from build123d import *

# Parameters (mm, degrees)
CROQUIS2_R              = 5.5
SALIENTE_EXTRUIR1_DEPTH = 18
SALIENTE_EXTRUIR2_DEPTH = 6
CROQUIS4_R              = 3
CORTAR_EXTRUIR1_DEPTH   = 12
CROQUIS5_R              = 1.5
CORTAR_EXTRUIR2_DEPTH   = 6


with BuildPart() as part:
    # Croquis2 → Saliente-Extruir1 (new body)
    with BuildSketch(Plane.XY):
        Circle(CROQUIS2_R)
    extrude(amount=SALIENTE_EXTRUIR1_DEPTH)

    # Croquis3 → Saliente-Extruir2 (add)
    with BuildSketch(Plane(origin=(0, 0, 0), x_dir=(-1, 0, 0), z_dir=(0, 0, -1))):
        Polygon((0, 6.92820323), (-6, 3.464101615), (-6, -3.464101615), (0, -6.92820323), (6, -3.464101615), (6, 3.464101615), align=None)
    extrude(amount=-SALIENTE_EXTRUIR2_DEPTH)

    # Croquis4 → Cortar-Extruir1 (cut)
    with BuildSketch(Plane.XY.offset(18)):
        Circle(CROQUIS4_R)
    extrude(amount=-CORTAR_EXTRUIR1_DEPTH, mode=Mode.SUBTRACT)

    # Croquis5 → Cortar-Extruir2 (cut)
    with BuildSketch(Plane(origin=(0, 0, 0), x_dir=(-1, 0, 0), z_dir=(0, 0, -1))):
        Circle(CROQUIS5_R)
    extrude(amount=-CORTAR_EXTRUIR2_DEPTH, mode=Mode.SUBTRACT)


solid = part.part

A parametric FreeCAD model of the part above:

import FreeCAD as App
import Part
import Sketcher
Q = App.Units.Quantity


def add_polygon(sketch, points):
    """Adds a closed chain of lines whose ends are joined by coincident constraints."""
    first, n = sketch.GeometryCount, len(points)
    for a, b in zip(points, points[1:] + points[:1]):
        sketch.addGeometry(Part.LineSegment(App.Vector(*a, 0), App.Vector(*b, 0)), False)
    for i in range(n):
        sketch.addConstraint(Sketcher.Constraint("Coincident", first + i, 2, first + (i + 1) % n, 1))

doc = App.newDocument("Part")
params = doc.addObject("Spreadsheet::Sheet", "Params")
for row, (alias, value) in enumerate([
    ("sketch1_diameter", "11 mm"),
    ("pad1_length", "18 mm"),
    ("pad2_length", "6 mm"),
    ("sketch3_diameter", "6 mm"),
    ("pocket1_length", "12 mm"),
    ("sketch4_diameter", "3 mm"),
    ("pocket2_length", "6 mm"),
], start=1):
    params.set(f"A{row}", alias)
    params.set(f"B{row}", "=" + value)
    params.setAlias(f"B{row}", alias)

body = doc.addObject("PartDesign::Body", "Body")

# Sketch on XY plane
sketch1 = doc.addObject("Sketcher::SketchObject", "Sketch")
body.addObject(sketch1)
sketch1.AttachmentSupport = (doc.XY_Plane, [""])
sketch1.MapMode = "FlatFace"
sketch1.addGeometry(Part.Circle(App.Vector(0, 0, 0), App.Vector(0, 0, 1), 6), False)
sketch1.addConstraint([
    Sketcher.Constraint("Coincident", 0, 3, -1, 1),
    Sketcher.Constraint("Diameter", 0, 11.0),
])
sketch1.setExpression("Constraints[1]", "Params.sketch1_diameter")
pad1 = doc.addObject("PartDesign::Pad", "Pad")
body.addObject(pad1)
pad1.Profile = sketch1
pad1.setExpression("Length", "Params.pad1_length")

# Sketch on XY plane
sketch2 = doc.addObject("Sketcher::SketchObject", "Sketch001")
body.addObject(sketch2)
sketch2.AttachmentSupport = (doc.XY_Plane, [""])
sketch2.MapMode = "FlatFace"
add_polygon(sketch2, [(0, 7), (6, 3), (6, -3), (0, -7), (-6, -3), (-6, 3)])  # lines 0-5
sketch2.addConstraint([
    Sketcher.Constraint("Vertical", 1),
    Sketcher.Constraint("Vertical", 4),
    Sketcher.Constraint("Symmetric", 0, 2, 3, 2, -1, 1),
    Sketcher.Constraint("Symmetric", 2, 2, 5, 2, -1, 1),
    Sketcher.Constraint("PointOnObject", 2, 2, -2),
    Sketcher.Constraint("Parallel", 2, 5),
    Sketcher.Constraint("Horizontal", 1, 2, 3, 2),
    Sketcher.Constraint("Angle", 0, Q("-30 deg")),
    Sketcher.Constraint("DistanceX", -1, 1, 0, 2, 6.0),
    Sketcher.Constraint("DistanceY", -1, 1, 0, 2, 3.464102),
])
pad2 = doc.addObject("PartDesign::Pad", "Pad001")
body.addObject(pad2)
pad2.Profile = sketch2
pad2.setExpression("Length", "Params.pad2_length")

# Sketch on XY plane
sketch3 = doc.addObject("Sketcher::SketchObject", "Sketch002")
body.addObject(sketch3)
sketch3.AttachmentSupport = (doc.XY_Plane, [""])
sketch3.MapMode = "FlatFace"
sketch3.AttachmentOffset = App.Placement(App.Vector(0, 0, 18), App.Rotation())
sketch3.addGeometry(Part.Circle(App.Vector(0, 0, 0), App.Vector(0, 0, 1), 3), False)
sketch3.addConstraint([
    Sketcher.Constraint("Coincident", 0, 3, -1, 1),
    Sketcher.Constraint("Diameter", 0, 6.0),
])
sketch3.setExpression("Constraints[1]", "Params.sketch3_diameter")
pocket1 = doc.addObject("PartDesign::Pocket", "Pocket")
body.addObject(pocket1)
pocket1.Profile = sketch3
pocket1.setExpression("Length", "Params.pocket1_length")

# Sketch on XY plane
sketch4 = doc.addObject("Sketcher::SketchObject", "Sketch003")
body.addObject(sketch4)
sketch4.AttachmentSupport = (doc.XY_Plane, [""])
sketch4.MapMode = "FlatFace"
sketch4.addGeometry(Part.Circle(App.Vector(0, 0, 0), App.Vector(0, 0, 1), 1.5), False)
sketch4.addConstraint([
    Sketcher.Constraint("Coincident", 0, 3, -1, 1),
    Sketcher.Constraint("Diameter", 0, 3.0),
])
sketch4.setExpression("Constraints[1]", "Params.sketch4_diameter")
pocket2 = doc.addObject("PartDesign::Pocket", "Pocket001")
body.addObject(pocket2)
pocket2.Profile = sketch4
pocket2.setExpression("Length", "Params.pocket2_length")
pocket2.Reversed = True

doc.recompute()
